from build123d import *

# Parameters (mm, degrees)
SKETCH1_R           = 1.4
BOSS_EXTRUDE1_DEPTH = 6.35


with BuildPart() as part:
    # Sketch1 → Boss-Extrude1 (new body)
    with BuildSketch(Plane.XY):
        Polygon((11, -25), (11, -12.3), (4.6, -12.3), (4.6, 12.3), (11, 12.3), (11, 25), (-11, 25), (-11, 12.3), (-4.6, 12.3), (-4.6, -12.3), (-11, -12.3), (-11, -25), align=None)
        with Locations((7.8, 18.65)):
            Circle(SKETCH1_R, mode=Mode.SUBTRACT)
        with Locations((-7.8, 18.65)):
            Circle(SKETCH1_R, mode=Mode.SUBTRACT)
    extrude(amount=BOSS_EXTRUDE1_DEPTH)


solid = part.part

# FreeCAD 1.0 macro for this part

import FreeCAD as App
import Part
import Sketcher

V = App.Vector
Q = App.Units.Quantity

doc = App.newDocument("Part")
body = doc.addObject("PartDesign::Body", "Body")

sketch1 = body.newObject("Sketcher::SketchObject", "Sketch")
sketch1.AttachmentSupport = (doc.getObject("XY_Plane"), [""])
sketch1.MapMode = "FlatFace"
sketch1.addGeometry([
    Part.LineSegment(V(11, -25, 0), V(11, -12.3, 0)),
    Part.LineSegment(V(11, -12.3, 0), V(4.6, -12.3, 0)),
    Part.LineSegment(V(4.6, -12.3, 0), V(4.6, 12.3, 0)),
    Part.LineSegment(V(4.6, 12.3, 0), V(11, 12.3, 0)),
    Part.LineSegment(V(11, 12.3, 0), V(11, 25, 0)),
    Part.LineSegment(V(11, 25, 0), V(-11, 25, 0)),
    Part.LineSegment(V(-11, 25, 0), V(-11, 12.3, 0)),
    Part.LineSegment(V(-11, 12.3, 0), V(-4.6, 12.3, 0)),
    Part.LineSegment(V(-4.6, 12.3, 0), V(-4.6, -12.3, 0)),
    Part.LineSegment(V(-4.6, -12.3, 0), V(-11, -12.3, 0)),
    Part.LineSegment(V(-11, -12.3, 0), V(-11, -25, 0)),
    Part.LineSegment(V(-11, -25, 0), V(11, -25, 0)),
    Part.Circle(V(-7.8, 18.6, 0), V(0, 0, 1), 1.4),
    Part.Circle(V(7.8, 18.6, 0), V(0, 0, 1), 1.4),
], False)
sketch1.addConstraint([
    Sketcher.Constraint("Coincident", 0, 2, 1, 1),
    Sketcher.Constraint("Coincident", 1, 2, 2, 1),
    Sketcher.Constraint("Coincident", 2, 2, 3, 1),
    Sketcher.Constraint("Coincident", 3, 2, 4, 1),
    Sketcher.Constraint("Coincident", 4, 2, 5, 1),
    Sketcher.Constraint("Coincident", 5, 2, 6, 1),
    Sketcher.Constraint("Coincident", 6, 2, 7, 1),
    Sketcher.Constraint("Coincident", 7, 2, 8, 1),
    Sketcher.Constraint("Coincident", 8, 2, 9, 1),
    Sketcher.Constraint("Coincident", 9, 2, 10, 1),
    Sketcher.Constraint("Coincident", 10, 2, 11, 1),
    Sketcher.Constraint("Coincident", 11, 2, 0, 1),
    Sketcher.Constraint("Vertical", 0),
    Sketcher.Constraint("Horizontal", 1),
    Sketcher.Constraint("Vertical", 2),
    Sketcher.Constraint("Horizontal", 3),
    Sketcher.Constraint("Vertical", 4),
    Sketcher.Constraint("Horizontal", 5),
    Sketcher.Constraint("Vertical", 6),
    Sketcher.Constraint("Horizontal", 7),
    Sketcher.Constraint("Vertical", 8),
    Sketcher.Constraint("Horizontal", 9),
    Sketcher.Constraint("Vertical", 10),
    Sketcher.Constraint("Horizontal", 11),
    Sketcher.Constraint("Equal", 12, 13),
    Sketcher.Constraint("Symmetric", 0, 2, 6, 2, -1, 1),
    Sketcher.Constraint("Symmetric", 2, 2, 8, 2, -1, 1),
    Sketcher.Constraint("Symmetric", 4, 2, 10, 2, -1, 1),
    Sketcher.Constraint("Symmetric", 12, 3, 13, 3, -2),
    Sketcher.Constraint("Symmetric", 3, 2, 6, 2, -2),
    Sketcher.Constraint("Diameter", 12, Q("2.8 mm")),
    Sketcher.Constraint("DistanceX", 5, 2, 5, 1, Q("22 mm")),
    Sketcher.Constraint("DistanceX", 1, 2, 1, 1, Q("6.4 mm")),
    Sketcher.Constraint("DistanceY", 0, 1, 0, 2, Q("12.7 mm")),
    Sketcher.Constraint("DistanceY", 2, 1, 2, 2, Q("24.6 mm")),
    Sketcher.Constraint("DistanceX", 12, 3, -1, 1, Q("7.8 mm")),
    Sketcher.Constraint("DistanceY", -1, 1, 12, 3, Q("18.65 mm")),
])
pad1 = body.newObject("PartDesign::Pad", "Pad")
pad1.Profile = sketch1
pad1.Length = 6.35

doc.recompute()
